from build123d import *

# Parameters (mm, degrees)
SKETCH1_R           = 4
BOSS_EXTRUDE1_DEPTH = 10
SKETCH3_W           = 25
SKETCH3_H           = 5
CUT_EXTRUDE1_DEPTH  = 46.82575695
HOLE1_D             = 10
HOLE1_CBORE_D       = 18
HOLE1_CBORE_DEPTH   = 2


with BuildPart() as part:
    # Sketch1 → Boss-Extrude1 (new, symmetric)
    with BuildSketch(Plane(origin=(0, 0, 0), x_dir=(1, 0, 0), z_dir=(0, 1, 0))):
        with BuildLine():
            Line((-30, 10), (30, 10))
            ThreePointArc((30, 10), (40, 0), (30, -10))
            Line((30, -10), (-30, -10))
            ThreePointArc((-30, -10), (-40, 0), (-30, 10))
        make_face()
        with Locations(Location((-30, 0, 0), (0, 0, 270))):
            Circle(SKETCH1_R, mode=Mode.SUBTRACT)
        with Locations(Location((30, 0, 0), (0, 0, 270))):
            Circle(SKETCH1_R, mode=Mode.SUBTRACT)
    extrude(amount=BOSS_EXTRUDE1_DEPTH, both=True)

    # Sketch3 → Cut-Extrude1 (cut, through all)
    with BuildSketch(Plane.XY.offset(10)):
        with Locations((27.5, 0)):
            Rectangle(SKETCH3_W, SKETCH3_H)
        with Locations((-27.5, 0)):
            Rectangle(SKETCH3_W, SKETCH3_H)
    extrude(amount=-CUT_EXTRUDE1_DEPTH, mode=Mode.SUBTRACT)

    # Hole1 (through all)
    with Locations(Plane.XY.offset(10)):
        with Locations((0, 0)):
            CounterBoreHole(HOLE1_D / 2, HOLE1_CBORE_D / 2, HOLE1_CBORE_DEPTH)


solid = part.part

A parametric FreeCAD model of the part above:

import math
import FreeCAD as App
import Part
import Sketcher
from FreeCAD import Vector
Q = App.Units.Quantity


def add_polygon(sketch, points):
    """Adds a closed chain of lines whose ends are joined by coincident constraints."""
    first, n = sketch.GeometryCount, len(points)
    for a, b in zip(points, points[1:] + points[:1]):
        sketch.addGeometry(Part.LineSegment(App.Vector(*a, 0), App.Vector(*b, 0)), False)
    for i in range(n):
        sketch.addConstraint(Sketcher.Constraint("Coincident", first + i, 2, first + (i + 1) % n, 1))

doc = App.newDocument("Part")
body = doc.addObject("PartDesign::Body", "Body")

# Sketch on XZ plane
sketch1 = body.newObject("Sketcher::SketchObject", "Sketch")
sketch1.AttachmentSupport = (doc.getObject("XZ_Plane"), [""])
sketch1.MapMode = "FlatFace"
sketch1.addGeometry(Part.LineSegment(Vector(30, -10, 0), Vector(-30, -10, 0)), False)
sketch1.addGeometry(Part.ArcOfCircle(Part.Circle(Vector(-30, 0, 0), Vector(0, 0, 1), 10), math.radians(90), math.radians(270)), False)
sketch1.addGeometry(Part.LineSegment(Vector(-30, 10, 0), Vector(30, 10, 0)), False)
sketch1.addGeometry(Part.ArcOfCircle(Part.Circle(Vector(30, 0, 0), Vector(0, 0, 1), 10), math.radians(-90), math.radians(90)), False)
sketch1.addGeometry(Part.Circle(Vector(30, 0, 0), Vector(0, 0, 1), 4), False)
sketch1.addGeometry(Part.Circle(Vector(-30, 0, 0), Vector(0, 0, 1), 4), False)
sketch1.addConstraint(Sketcher.Constraint("Tangent", 0, 2, 1, 2))
sketch1.addConstraint(Sketcher.Constraint("Tangent", 1, 1, 2, 1))
sketch1.addConstraint(Sketcher.Constraint("Tangent", 2, 2, 3, 2))
sketch1.addConstraint(Sketcher.Constraint("Tangent", 3, 1, 0, 1))
sketch1.addConstraint(Sketcher.Constraint("Horizontal", 0))
sketch1.addConstraint(Sketcher.Constraint("Horizontal", 2))
sketch1.addConstraint(Sketcher.Constraint("Coincident", 4, 3, 3, 3))
sketch1.addConstraint(Sketcher.Constraint("Coincident", 5, 3, 1, 3))
sketch1.addConstraint(Sketcher.Constraint("Equal", 4, 5))
sketch1.addConstraint(Sketcher.Constraint("Symmetric", 1, 3, 3, 3, -1, 1))
sketch1.addConstraint(Sketcher.Constraint("Diameter", 4, Q("8 mm")))
sketch1.addConstraint(Sketcher.Constraint("Radius", 1, Q("10 mm")))
sketch1.addConstraint(Sketcher.Constraint("DistanceX", 0, 2, 0, 1, Q("60 mm")))
pad1 = body.newObject("PartDesign::Pad", "Pad")
pad1.Profile = sketch1
pad1.Length = 20
pad1.Midplane = True

# Sketch on XY plane
sketch2 = body.newObject("Sketcher::SketchObject", "Sketch001")
sketch2.AttachmentSupport = (doc.getObject("XY_Plane"), [""])
sketch2.MapMode = "FlatFace"
sketch2.AttachmentOffset = App.Placement(Vector(0, 0, 10), App.Rotation())
add_polygon(sketch2, [(15, 2.5), (15, -2.5), (40, -2.5), (40, 2.5)])  # lines 0-3
add_polygon(sketch2, [(-40, 2.5), (-40, -2.5), (-15, -2.5), (-15, 2.5)])  # lines 4-7
sketch2.addConstraint(Sketcher.Constraint("Vertical", 0))
sketch2.addConstraint(Sketcher.Constraint("Horizontal", 1))
sketch2.addConstraint(Sketcher.Constraint("Vertical", 2))
sketch2.addConstraint(Sketcher.Constraint("Horizontal", 3))
sketch2.addConstraint(Sketcher.Constraint("Vertical", 4))
sketch2.addConstraint(Sketcher.Constraint("Horizontal", 5))
sketch2.addConstraint(Sketcher.Constraint("Vertical", 6))
sketch2.addConstraint(Sketcher.Constraint("Horizontal", 7))
sketch2.addConstraint(Sketcher.Constraint("Symmetric", 2, 2, 4, 2, -1, 1))
sketch2.addConstraint(Sketcher.Constraint("Symmetric", 0, 2, 6, 2, -1, 1))
sketch2.addConstraint(Sketcher.Constraint("Horizontal", 1, 2, 4, 2))
sketch2.addConstraint(Sketcher.Constraint("DistanceX", 1, 1, 1, 2, Q("25 mm")))
sketch2.addConstraint(Sketcher.Constraint("DistanceY", 0, 2, 0, 1, Q("5 mm")))
sketch2.addConstraint(Sketcher.Constraint("DistanceX", -1, 1, 0, 2, Q("15 mm")))
pocket1 = body.newObject("PartDesign::Pocket", "Pocket")
pocket1.Profile = sketch2
pocket1.Type = "ThroughAll"

# Sketch on XY plane
sketch3 = body.newObject("Sketcher::SketchObject", "Sketch002")
sketch3.AttachmentSupport = (doc.getObject("XY_Plane"), [""])
sketch3.MapMode = "FlatFace"
sketch3.AttachmentOffset = App.Placement(Vector(0, 0, 10), App.Rotation())
sketch3.addGeometry(Part.Circle(Vector(0, 0, 0), Vector(0, 0, 1), 5), False)
sketch3.addConstraint(Sketcher.Constraint("Coincident", 0, 3, -1, 1))
sketch3.addConstraint(Sketcher.Constraint("Diameter", 0, Q("10 mm")))
doc.recompute()
hole = body.newObject("PartDesign::Hole", "Hole")
hole.Profile = sketch3
hole.ThreadType = "None"
hole.Diameter = 10
hole.DepthType = "ThroughAll"
hole.HoleCutType = "Counterbore"
hole.HoleCutDiameter = 18
hole.HoleCutDepth = 2

doc.recompute()
